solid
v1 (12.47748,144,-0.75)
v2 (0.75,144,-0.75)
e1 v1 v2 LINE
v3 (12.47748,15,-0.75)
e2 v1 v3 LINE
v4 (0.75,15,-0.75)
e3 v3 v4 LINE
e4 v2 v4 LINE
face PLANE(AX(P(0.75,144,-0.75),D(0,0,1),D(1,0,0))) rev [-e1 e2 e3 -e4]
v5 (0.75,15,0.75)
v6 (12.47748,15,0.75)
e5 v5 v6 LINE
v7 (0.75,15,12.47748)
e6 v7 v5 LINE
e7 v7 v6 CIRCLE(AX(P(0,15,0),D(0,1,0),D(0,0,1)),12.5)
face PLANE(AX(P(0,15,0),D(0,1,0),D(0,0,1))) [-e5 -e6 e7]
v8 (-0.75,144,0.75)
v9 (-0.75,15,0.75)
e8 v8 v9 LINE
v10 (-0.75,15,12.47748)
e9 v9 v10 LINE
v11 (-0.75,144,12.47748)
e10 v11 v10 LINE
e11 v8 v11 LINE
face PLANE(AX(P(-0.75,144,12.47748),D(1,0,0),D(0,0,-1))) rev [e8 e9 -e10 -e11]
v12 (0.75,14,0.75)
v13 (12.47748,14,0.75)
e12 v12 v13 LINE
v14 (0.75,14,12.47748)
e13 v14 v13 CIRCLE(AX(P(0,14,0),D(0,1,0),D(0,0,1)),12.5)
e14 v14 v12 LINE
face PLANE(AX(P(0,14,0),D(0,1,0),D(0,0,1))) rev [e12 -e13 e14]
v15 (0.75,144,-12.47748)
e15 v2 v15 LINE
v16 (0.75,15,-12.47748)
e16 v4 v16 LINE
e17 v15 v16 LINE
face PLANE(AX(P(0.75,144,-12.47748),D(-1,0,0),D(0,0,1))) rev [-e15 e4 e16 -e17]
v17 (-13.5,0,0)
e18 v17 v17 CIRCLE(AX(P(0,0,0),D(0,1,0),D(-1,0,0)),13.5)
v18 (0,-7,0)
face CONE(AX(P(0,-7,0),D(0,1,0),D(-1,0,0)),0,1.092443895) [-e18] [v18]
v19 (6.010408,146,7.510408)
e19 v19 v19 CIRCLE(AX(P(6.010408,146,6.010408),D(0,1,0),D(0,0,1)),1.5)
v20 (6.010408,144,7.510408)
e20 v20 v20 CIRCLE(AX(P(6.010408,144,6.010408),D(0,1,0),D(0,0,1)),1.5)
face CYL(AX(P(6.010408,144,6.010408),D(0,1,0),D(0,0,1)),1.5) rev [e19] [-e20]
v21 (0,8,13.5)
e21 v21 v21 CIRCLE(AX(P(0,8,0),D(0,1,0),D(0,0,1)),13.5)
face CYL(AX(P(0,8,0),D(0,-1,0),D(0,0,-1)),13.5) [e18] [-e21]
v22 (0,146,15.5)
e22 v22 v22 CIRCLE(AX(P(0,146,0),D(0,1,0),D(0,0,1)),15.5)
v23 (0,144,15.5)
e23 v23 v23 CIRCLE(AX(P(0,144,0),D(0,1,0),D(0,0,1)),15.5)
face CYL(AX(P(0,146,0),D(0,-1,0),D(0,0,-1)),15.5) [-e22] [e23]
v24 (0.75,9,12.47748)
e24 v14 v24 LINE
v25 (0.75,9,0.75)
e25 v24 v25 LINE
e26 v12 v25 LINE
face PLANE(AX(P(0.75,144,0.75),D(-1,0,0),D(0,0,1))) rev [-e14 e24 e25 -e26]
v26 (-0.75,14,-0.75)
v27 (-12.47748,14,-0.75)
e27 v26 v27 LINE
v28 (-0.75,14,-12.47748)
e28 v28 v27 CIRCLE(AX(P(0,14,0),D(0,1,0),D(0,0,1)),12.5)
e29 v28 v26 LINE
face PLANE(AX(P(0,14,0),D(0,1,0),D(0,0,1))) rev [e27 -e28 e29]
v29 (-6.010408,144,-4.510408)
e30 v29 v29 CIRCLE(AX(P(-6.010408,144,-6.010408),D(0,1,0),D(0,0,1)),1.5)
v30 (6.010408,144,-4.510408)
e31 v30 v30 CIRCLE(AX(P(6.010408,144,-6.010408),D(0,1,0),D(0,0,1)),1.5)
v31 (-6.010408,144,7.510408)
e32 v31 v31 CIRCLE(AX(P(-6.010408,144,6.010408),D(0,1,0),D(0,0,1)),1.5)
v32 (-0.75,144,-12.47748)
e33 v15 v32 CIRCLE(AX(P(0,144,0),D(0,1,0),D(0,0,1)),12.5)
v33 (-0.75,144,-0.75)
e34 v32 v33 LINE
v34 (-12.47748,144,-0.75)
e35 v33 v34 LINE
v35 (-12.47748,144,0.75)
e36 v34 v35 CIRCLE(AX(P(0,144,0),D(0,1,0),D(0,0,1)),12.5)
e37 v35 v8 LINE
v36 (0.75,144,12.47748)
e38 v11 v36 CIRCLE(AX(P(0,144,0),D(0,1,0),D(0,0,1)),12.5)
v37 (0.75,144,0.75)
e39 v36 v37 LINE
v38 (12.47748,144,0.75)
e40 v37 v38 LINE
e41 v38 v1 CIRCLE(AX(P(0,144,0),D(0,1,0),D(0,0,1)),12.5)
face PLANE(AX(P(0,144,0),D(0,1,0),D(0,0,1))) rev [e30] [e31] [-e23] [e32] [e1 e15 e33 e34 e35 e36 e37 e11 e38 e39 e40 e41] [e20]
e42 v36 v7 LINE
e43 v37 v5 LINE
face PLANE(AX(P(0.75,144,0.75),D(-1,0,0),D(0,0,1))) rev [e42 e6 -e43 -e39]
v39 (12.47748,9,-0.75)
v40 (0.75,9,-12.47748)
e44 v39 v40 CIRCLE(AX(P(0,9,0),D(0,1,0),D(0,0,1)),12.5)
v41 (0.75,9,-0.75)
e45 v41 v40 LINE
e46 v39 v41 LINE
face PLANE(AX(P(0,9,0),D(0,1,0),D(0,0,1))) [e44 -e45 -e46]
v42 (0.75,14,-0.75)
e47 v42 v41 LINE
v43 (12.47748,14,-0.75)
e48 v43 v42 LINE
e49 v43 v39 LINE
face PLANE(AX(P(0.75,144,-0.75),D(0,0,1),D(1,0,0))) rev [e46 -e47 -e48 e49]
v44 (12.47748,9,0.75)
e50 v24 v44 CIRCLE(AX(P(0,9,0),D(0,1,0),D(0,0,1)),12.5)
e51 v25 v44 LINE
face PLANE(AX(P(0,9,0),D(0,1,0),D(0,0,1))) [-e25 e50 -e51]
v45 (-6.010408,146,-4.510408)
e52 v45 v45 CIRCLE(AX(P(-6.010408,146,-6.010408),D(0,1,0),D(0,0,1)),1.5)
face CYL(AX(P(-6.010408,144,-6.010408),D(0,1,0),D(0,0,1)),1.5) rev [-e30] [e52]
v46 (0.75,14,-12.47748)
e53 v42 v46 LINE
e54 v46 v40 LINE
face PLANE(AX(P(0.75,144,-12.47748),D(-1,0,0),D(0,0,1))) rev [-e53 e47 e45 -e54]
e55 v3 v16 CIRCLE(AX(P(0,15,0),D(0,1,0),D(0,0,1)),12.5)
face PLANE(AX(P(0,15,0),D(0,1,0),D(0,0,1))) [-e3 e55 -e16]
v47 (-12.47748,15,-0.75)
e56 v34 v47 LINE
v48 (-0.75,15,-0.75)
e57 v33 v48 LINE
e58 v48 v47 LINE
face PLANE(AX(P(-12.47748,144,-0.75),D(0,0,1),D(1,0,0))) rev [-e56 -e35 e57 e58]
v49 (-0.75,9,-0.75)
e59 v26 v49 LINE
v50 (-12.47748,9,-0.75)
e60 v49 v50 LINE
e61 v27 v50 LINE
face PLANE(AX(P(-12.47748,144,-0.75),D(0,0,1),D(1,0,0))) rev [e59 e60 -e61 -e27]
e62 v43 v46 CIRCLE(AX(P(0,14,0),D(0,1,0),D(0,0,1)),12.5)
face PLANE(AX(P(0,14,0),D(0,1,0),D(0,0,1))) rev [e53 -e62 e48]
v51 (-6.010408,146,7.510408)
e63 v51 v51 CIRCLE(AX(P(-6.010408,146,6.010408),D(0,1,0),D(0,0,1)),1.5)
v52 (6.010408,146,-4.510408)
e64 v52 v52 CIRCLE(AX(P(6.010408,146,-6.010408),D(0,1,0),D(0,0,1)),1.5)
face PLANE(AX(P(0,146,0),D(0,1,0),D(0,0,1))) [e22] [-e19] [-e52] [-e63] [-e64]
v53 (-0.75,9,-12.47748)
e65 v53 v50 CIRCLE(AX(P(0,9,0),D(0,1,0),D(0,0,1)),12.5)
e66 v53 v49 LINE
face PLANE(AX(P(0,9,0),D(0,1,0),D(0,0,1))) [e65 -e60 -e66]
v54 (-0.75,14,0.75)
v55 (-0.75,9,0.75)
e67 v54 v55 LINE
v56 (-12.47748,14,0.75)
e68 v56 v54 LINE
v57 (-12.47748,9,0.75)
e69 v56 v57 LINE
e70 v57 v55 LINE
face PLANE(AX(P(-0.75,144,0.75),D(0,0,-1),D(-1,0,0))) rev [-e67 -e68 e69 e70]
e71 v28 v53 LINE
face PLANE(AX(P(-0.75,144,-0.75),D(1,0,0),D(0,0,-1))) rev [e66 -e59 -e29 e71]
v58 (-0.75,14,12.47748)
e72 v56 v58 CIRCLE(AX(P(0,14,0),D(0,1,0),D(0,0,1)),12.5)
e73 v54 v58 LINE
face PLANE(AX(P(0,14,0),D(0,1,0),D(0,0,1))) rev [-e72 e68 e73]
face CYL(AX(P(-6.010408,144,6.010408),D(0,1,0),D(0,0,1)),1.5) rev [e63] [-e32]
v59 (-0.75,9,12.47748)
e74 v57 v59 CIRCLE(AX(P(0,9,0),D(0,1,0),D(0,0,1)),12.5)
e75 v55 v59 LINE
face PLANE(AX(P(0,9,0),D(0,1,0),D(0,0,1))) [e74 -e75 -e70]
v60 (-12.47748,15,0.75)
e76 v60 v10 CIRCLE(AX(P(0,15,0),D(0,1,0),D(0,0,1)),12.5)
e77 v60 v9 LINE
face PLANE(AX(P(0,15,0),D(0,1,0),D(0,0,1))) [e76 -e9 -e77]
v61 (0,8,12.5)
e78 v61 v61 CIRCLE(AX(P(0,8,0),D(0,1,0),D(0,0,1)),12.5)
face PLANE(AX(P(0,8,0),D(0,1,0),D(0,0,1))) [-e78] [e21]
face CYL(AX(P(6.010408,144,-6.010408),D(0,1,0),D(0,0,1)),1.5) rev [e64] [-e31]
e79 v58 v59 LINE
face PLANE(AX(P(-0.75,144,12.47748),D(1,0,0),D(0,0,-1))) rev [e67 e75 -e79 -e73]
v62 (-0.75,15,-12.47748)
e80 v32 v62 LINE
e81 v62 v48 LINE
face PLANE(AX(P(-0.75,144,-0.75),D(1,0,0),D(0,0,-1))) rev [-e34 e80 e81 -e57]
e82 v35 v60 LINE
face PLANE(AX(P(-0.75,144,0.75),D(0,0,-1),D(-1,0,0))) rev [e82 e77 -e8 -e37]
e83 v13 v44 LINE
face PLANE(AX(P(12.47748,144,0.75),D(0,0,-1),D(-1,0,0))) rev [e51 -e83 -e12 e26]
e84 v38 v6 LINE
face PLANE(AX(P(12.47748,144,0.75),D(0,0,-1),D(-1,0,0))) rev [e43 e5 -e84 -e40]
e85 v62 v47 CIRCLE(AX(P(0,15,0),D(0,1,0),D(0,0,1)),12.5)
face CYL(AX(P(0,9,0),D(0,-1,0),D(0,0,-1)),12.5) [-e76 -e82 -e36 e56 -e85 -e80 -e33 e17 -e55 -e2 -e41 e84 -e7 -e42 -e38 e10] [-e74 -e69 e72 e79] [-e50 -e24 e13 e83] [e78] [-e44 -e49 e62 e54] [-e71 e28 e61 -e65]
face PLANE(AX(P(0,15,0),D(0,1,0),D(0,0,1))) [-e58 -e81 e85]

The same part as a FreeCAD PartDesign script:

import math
import FreeCAD as App
import Part
import Sketcher

V = App.Vector

doc = App.newDocument("Part")
body = doc.addObject("PartDesign::Body", "Body")

# Sketch on XZ plane
sketch1 = body.newObject("Sketcher::SketchObject", "Sketch")
sketch1.AttachmentSupport = (doc.getObject("XZ_Plane"), [""])
sketch1.MapMode = "FlatFace"
sketch1.addGeometry(Part.Circle(V(0, 0, 0), V(0, 0, 1), 13.5), False)
sketch1.addConstraint([
    Sketcher.Constraint("Coincident", 0, 3, -1, 1),
    Sketcher.Constraint("Diameter", 0, 27.0),
])
pad1 = body.newObject("PartDesign::Pad", "Pad")
pad1.Profile = sketch1
pad1.Length = 8
pad1.Reversed = True

# Sketch on XZ plane
sketch2 = body.newObject("Sketcher::SketchObject", "Sketch001")
sketch2.AttachmentSupport = (doc.getObject("XZ_Plane"), [""])
sketch2.MapMode = "FlatFace"
sketch2.AttachmentOffset = App.Placement(V(0, 0, -8), App.Rotation())
sketch2.addGeometry(Part.Circle(V(0, 0, 0), V(0, 0, 1), 12.5), False)
sketch2.addConstraint([
    Sketcher.Constraint("Coincident", 0, 3, -1, 1),
    Sketcher.Constraint("Diameter", 0, 25.0),
])
pad2 = body.newObject("PartDesign::Pad", "Pad001")
pad2.Profile = sketch2
pad2.Length = 1
pad2.Reversed = True

# Sketch on XZ plane
sketch3 = body.newObject("Sketcher::SketchObject", "Sketch002")
sketch3.AttachmentSupport = (doc.getObject("XZ_Plane"), [""])
sketch3.MapMode = "FlatFace"
sketch3.AttachmentOffset = App.Placement(V(0, 0, -9), App.Rotation())
sketch3.addGeometry([
    Part.LineSegment(V(-12.47748, 0.75, 0), V(-0.75, 0.75, 0)),  # 0
    Part.LineSegment(V(-0.75, 0.75, 0), V(-0.75, 12.47748, 0)),  # 1
    Part.ArcOfCircle(Part.Circle(V(0, 0, 0), V(0, 0, 1), 12.5), math.radians(86.560187), math.radians(93.439813)),  # 2
    Part.LineSegment(V(0.75, 12.47748, 0), V(0.75, 0.75, 0)),  # 3
    Part.LineSegment(V(0.75, 0.75, 0), V(12.47748, 0.75, 0)),  # 4
    Part.ArcOfCircle(Part.Circle(V(0, 0, 0), V(0, 0, 1), 12.5), math.radians(-3.439813), math.radians(3.439813)),  # 5
    Part.LineSegment(V(12.47748, -0.75, 0), V(0.75, -0.75, 0)),  # 6
    Part.LineSegment(V(0.75, -0.75, 0), V(0.75, -12.47748, 0)),  # 7
    Part.ArcOfCircle(Part.Circle(V(0, 0, 0), V(0, 0, 1), 12.5), math.radians(-93.439813), math.radians(-86.560187)),  # 8
    Part.LineSegment(V(-0.75, -12.47748, 0), V(-0.75, -0.75, 0)),  # 9
    Part.LineSegment(V(-0.75, -0.75, 0), V(-12.47748, -0.75, 0)),  # 10
    Part.ArcOfCircle(Part.Circle(V(0, 0, 0), V(0, 0, 1), 12.5), math.radians(176.560187), math.radians(183.439813)),  # 11
], False)
sketch3.addConstraint([
    Sketcher.Constraint("Coincident", 0, 2, 1, 1),
    Sketcher.Constraint("Coincident", 1, 2, 2, 2),
    Sketcher.Constraint("Coincident", 2, 1, 3, 1),
    Sketcher.Constraint("Coincident", 3, 2, 4, 1),
    Sketcher.Constraint("Coincident", 4, 2, 5, 2),
    Sketcher.Constraint("Coincident", 5, 1, 6, 1),
    Sketcher.Constraint("Coincident", 6, 2, 7, 1),
    Sketcher.Constraint("Coincident", 7, 2, 8, 2),
    Sketcher.Constraint("Coincident", 8, 1, 9, 1),
    Sketcher.Constraint("Coincident", 9, 2, 10, 1),
    Sketcher.Constraint("Coincident", 10, 2, 11, 2),
    Sketcher.Constraint("Coincident", 11, 1, 0, 1),
    Sketcher.Constraint("Horizontal", 0),
    Sketcher.Constraint("Vertical", 1),
    Sketcher.Constraint("Vertical", 3),
    Sketcher.Constraint("Horizontal", 4),
    Sketcher.Constraint("Horizontal", 6),
    Sketcher.Constraint("Vertical", 7),
    Sketcher.Constraint("Vertical", 9),
    Sketcher.Constraint("Horizontal", 10),
    Sketcher.Constraint("Coincident", 2, 3, -1, 1),
    Sketcher.Constraint("Coincident", 5, 3, -1, 1),
    Sketcher.Constraint("Coincident", 8, 3, -1, 1),
    Sketcher.Constraint("Coincident", 11, 3, -1, 1),
    Sketcher.Constraint("Equal", 2, 5),
    Sketcher.Constraint("Equal", 5, 8),
    Sketcher.Constraint("Equal", 8, 11),
    Sketcher.Constraint("Symmetric", 0, 2, 6, 2, -1, 1),
    Sketcher.Constraint("Symmetric", 3, 2, 9, 2, -1, 1),
    Sketcher.Constraint("Symmetric", 0, 2, 3, 2, -2),
    Sketcher.Constraint("Equal", 10, 1),
    Sketcher.Constraint("Radius", 2, 12.5),
    Sketcher.Constraint("DistanceX", 1, 2, 2, 1, 1.5),
])
pad3 = body.newObject("PartDesign::Pad", "Pad002")
pad3.Profile = sketch3
pad3.Length = 135
pad3.Reversed = True

# Sketch on XZ plane
sketch4 = body.newObject("Sketcher::SketchObject", "Sketch003")
sketch4.AttachmentSupport = (doc.getObject("XZ_Plane"), [""])
sketch4.MapMode = "FlatFace"
sketch4.AttachmentOffset = App.Placement(V(0, 0, -14), App.Rotation())
sketch4.addGeometry(Part.Circle(V(0, 0, 0), V(0, 0, 1), 12.5), False)
sketch4.addConstraint([
    Sketcher.Constraint("Coincident", 0, 3, -1, 1),
    Sketcher.Constraint("Diameter", 0, 25.0),
])
pad4 = body.newObject("PartDesign::Pad", "Pad003")
pad4.Profile = sketch4
pad4.Length = 1
pad4.Reversed = True

# Sketch on XY plane
sketch5 = body.newObject("Sketcher::SketchObject", "Sketch004")
sketch5.AttachmentSupport = (doc.getObject("XY_Plane"), [""])
sketch5.MapMode = "FlatFace"
sketch5.addGeometry([
    Part.LineSegment(V(0, 0, 0), V(0, -7, 0)),
    Part.LineSegment(V(0, -7, 0), V(13.5, 0, 0)),
    Part.LineSegment(V(13.5, 0, 0), V(0, 0, 0)),
], False)
sketch5.addConstraint([
    Sketcher.Constraint("Coincident", 0, 2, 1, 1),
    Sketcher.Constraint("Coincident", 1, 2, 2, 1),
    Sketcher.Constraint("Coincident", 2, 2, 0, 1),
    Sketcher.Constraint("Vertical", 0),
    Sketcher.Constraint("Horizontal", 2),
    Sketcher.Constraint("Coincident", 2, 2, -1, 1),
    Sketcher.Constraint("DistanceY", 0, 2, 0, 1, 7.0),
    Sketcher.Constraint("DistanceX", 2, 2, 2, 1, 13.5),
])
revolution = body.newObject("PartDesign::Revolution", "Revolution")
revolution.Profile = sketch5
revolution.ReferenceAxis = (sketch5, ["V_Axis"])
revolution.Angle = 360

# Sketch on XZ plane
sketch6 = body.newObject("Sketcher::SketchObject", "Sketch005")
sketch6.AttachmentSupport = (doc.getObject("XZ_Plane"), [""])
sketch6.MapMode = "FlatFace"
sketch6.AttachmentOffset = App.Placement(V(0, 0, -144), App.Rotation())
sketch6.addGeometry(Part.Circle(V(0, 0, 0), V(0, 0, 1), 15.5), False)
sketch6.addConstraint([
    Sketcher.Constraint("Coincident", 0, 3, -1, 1),
    Sketcher.Constraint("Diameter", 0, 31.0),
])
pad5 = body.newObject("PartDesign::Pad", "Pad004")
pad5.Profile = sketch6
pad5.Length = 2
pad5.Reversed = True

# Sketch on XZ plane
sketch7 = body.newObject("Sketcher::SketchObject", "Sketch006")
sketch7.AttachmentSupport = (doc.getObject("XZ_Plane"), [""])
sketch7.MapMode = "FlatFace"
sketch7.AttachmentOffset = App.Placement(V(0, 0, -146), App.Rotation())
sketch7.addGeometry([
    Part.Circle(V(-6.010408, -6.010408, 0), V(0, 0, 1), 1.5),
    Part.Circle(V(6.010408, -6.010408, 0), V(0, 0, 1), 1.5),
    Part.Circle(V(6.010408, 6.010408, 0), V(0, 0, 1), 1.5),
    Part.Circle(V(-6.010408, 6.010408, 0), V(0, 0, 1), 1.5),
], False)
sketch7.addConstraint([
    Sketcher.Constraint("Equal", 0, 1),
    Sketcher.Constraint("Equal", 1, 2),
    Sketcher.Constraint("Equal", 2, 3),
    Sketcher.Constraint("Symmetric", 0, 3, 2, 3, -1, 1),
    Sketcher.Constraint("Symmetric", 1, 3, 3, 3, -1, 1),
    Sketcher.Constraint("Symmetric", 0, 3, 1, 3, -2),
    Sketcher.Constraint("Diameter", 0, 3.0),
    Sketcher.Constraint("DistanceX", 0, 3, -1, 1, 6.010408),
    Sketcher.Constraint("DistanceY", 0, 3, -1, 1, 6.010408),
])
pocket1 = body.newObject("PartDesign::Pocket", "Pocket")
pocket1.Profile = sketch7
pocket1.Length = 2
pocket1.Reversed = True

doc.recompute()
